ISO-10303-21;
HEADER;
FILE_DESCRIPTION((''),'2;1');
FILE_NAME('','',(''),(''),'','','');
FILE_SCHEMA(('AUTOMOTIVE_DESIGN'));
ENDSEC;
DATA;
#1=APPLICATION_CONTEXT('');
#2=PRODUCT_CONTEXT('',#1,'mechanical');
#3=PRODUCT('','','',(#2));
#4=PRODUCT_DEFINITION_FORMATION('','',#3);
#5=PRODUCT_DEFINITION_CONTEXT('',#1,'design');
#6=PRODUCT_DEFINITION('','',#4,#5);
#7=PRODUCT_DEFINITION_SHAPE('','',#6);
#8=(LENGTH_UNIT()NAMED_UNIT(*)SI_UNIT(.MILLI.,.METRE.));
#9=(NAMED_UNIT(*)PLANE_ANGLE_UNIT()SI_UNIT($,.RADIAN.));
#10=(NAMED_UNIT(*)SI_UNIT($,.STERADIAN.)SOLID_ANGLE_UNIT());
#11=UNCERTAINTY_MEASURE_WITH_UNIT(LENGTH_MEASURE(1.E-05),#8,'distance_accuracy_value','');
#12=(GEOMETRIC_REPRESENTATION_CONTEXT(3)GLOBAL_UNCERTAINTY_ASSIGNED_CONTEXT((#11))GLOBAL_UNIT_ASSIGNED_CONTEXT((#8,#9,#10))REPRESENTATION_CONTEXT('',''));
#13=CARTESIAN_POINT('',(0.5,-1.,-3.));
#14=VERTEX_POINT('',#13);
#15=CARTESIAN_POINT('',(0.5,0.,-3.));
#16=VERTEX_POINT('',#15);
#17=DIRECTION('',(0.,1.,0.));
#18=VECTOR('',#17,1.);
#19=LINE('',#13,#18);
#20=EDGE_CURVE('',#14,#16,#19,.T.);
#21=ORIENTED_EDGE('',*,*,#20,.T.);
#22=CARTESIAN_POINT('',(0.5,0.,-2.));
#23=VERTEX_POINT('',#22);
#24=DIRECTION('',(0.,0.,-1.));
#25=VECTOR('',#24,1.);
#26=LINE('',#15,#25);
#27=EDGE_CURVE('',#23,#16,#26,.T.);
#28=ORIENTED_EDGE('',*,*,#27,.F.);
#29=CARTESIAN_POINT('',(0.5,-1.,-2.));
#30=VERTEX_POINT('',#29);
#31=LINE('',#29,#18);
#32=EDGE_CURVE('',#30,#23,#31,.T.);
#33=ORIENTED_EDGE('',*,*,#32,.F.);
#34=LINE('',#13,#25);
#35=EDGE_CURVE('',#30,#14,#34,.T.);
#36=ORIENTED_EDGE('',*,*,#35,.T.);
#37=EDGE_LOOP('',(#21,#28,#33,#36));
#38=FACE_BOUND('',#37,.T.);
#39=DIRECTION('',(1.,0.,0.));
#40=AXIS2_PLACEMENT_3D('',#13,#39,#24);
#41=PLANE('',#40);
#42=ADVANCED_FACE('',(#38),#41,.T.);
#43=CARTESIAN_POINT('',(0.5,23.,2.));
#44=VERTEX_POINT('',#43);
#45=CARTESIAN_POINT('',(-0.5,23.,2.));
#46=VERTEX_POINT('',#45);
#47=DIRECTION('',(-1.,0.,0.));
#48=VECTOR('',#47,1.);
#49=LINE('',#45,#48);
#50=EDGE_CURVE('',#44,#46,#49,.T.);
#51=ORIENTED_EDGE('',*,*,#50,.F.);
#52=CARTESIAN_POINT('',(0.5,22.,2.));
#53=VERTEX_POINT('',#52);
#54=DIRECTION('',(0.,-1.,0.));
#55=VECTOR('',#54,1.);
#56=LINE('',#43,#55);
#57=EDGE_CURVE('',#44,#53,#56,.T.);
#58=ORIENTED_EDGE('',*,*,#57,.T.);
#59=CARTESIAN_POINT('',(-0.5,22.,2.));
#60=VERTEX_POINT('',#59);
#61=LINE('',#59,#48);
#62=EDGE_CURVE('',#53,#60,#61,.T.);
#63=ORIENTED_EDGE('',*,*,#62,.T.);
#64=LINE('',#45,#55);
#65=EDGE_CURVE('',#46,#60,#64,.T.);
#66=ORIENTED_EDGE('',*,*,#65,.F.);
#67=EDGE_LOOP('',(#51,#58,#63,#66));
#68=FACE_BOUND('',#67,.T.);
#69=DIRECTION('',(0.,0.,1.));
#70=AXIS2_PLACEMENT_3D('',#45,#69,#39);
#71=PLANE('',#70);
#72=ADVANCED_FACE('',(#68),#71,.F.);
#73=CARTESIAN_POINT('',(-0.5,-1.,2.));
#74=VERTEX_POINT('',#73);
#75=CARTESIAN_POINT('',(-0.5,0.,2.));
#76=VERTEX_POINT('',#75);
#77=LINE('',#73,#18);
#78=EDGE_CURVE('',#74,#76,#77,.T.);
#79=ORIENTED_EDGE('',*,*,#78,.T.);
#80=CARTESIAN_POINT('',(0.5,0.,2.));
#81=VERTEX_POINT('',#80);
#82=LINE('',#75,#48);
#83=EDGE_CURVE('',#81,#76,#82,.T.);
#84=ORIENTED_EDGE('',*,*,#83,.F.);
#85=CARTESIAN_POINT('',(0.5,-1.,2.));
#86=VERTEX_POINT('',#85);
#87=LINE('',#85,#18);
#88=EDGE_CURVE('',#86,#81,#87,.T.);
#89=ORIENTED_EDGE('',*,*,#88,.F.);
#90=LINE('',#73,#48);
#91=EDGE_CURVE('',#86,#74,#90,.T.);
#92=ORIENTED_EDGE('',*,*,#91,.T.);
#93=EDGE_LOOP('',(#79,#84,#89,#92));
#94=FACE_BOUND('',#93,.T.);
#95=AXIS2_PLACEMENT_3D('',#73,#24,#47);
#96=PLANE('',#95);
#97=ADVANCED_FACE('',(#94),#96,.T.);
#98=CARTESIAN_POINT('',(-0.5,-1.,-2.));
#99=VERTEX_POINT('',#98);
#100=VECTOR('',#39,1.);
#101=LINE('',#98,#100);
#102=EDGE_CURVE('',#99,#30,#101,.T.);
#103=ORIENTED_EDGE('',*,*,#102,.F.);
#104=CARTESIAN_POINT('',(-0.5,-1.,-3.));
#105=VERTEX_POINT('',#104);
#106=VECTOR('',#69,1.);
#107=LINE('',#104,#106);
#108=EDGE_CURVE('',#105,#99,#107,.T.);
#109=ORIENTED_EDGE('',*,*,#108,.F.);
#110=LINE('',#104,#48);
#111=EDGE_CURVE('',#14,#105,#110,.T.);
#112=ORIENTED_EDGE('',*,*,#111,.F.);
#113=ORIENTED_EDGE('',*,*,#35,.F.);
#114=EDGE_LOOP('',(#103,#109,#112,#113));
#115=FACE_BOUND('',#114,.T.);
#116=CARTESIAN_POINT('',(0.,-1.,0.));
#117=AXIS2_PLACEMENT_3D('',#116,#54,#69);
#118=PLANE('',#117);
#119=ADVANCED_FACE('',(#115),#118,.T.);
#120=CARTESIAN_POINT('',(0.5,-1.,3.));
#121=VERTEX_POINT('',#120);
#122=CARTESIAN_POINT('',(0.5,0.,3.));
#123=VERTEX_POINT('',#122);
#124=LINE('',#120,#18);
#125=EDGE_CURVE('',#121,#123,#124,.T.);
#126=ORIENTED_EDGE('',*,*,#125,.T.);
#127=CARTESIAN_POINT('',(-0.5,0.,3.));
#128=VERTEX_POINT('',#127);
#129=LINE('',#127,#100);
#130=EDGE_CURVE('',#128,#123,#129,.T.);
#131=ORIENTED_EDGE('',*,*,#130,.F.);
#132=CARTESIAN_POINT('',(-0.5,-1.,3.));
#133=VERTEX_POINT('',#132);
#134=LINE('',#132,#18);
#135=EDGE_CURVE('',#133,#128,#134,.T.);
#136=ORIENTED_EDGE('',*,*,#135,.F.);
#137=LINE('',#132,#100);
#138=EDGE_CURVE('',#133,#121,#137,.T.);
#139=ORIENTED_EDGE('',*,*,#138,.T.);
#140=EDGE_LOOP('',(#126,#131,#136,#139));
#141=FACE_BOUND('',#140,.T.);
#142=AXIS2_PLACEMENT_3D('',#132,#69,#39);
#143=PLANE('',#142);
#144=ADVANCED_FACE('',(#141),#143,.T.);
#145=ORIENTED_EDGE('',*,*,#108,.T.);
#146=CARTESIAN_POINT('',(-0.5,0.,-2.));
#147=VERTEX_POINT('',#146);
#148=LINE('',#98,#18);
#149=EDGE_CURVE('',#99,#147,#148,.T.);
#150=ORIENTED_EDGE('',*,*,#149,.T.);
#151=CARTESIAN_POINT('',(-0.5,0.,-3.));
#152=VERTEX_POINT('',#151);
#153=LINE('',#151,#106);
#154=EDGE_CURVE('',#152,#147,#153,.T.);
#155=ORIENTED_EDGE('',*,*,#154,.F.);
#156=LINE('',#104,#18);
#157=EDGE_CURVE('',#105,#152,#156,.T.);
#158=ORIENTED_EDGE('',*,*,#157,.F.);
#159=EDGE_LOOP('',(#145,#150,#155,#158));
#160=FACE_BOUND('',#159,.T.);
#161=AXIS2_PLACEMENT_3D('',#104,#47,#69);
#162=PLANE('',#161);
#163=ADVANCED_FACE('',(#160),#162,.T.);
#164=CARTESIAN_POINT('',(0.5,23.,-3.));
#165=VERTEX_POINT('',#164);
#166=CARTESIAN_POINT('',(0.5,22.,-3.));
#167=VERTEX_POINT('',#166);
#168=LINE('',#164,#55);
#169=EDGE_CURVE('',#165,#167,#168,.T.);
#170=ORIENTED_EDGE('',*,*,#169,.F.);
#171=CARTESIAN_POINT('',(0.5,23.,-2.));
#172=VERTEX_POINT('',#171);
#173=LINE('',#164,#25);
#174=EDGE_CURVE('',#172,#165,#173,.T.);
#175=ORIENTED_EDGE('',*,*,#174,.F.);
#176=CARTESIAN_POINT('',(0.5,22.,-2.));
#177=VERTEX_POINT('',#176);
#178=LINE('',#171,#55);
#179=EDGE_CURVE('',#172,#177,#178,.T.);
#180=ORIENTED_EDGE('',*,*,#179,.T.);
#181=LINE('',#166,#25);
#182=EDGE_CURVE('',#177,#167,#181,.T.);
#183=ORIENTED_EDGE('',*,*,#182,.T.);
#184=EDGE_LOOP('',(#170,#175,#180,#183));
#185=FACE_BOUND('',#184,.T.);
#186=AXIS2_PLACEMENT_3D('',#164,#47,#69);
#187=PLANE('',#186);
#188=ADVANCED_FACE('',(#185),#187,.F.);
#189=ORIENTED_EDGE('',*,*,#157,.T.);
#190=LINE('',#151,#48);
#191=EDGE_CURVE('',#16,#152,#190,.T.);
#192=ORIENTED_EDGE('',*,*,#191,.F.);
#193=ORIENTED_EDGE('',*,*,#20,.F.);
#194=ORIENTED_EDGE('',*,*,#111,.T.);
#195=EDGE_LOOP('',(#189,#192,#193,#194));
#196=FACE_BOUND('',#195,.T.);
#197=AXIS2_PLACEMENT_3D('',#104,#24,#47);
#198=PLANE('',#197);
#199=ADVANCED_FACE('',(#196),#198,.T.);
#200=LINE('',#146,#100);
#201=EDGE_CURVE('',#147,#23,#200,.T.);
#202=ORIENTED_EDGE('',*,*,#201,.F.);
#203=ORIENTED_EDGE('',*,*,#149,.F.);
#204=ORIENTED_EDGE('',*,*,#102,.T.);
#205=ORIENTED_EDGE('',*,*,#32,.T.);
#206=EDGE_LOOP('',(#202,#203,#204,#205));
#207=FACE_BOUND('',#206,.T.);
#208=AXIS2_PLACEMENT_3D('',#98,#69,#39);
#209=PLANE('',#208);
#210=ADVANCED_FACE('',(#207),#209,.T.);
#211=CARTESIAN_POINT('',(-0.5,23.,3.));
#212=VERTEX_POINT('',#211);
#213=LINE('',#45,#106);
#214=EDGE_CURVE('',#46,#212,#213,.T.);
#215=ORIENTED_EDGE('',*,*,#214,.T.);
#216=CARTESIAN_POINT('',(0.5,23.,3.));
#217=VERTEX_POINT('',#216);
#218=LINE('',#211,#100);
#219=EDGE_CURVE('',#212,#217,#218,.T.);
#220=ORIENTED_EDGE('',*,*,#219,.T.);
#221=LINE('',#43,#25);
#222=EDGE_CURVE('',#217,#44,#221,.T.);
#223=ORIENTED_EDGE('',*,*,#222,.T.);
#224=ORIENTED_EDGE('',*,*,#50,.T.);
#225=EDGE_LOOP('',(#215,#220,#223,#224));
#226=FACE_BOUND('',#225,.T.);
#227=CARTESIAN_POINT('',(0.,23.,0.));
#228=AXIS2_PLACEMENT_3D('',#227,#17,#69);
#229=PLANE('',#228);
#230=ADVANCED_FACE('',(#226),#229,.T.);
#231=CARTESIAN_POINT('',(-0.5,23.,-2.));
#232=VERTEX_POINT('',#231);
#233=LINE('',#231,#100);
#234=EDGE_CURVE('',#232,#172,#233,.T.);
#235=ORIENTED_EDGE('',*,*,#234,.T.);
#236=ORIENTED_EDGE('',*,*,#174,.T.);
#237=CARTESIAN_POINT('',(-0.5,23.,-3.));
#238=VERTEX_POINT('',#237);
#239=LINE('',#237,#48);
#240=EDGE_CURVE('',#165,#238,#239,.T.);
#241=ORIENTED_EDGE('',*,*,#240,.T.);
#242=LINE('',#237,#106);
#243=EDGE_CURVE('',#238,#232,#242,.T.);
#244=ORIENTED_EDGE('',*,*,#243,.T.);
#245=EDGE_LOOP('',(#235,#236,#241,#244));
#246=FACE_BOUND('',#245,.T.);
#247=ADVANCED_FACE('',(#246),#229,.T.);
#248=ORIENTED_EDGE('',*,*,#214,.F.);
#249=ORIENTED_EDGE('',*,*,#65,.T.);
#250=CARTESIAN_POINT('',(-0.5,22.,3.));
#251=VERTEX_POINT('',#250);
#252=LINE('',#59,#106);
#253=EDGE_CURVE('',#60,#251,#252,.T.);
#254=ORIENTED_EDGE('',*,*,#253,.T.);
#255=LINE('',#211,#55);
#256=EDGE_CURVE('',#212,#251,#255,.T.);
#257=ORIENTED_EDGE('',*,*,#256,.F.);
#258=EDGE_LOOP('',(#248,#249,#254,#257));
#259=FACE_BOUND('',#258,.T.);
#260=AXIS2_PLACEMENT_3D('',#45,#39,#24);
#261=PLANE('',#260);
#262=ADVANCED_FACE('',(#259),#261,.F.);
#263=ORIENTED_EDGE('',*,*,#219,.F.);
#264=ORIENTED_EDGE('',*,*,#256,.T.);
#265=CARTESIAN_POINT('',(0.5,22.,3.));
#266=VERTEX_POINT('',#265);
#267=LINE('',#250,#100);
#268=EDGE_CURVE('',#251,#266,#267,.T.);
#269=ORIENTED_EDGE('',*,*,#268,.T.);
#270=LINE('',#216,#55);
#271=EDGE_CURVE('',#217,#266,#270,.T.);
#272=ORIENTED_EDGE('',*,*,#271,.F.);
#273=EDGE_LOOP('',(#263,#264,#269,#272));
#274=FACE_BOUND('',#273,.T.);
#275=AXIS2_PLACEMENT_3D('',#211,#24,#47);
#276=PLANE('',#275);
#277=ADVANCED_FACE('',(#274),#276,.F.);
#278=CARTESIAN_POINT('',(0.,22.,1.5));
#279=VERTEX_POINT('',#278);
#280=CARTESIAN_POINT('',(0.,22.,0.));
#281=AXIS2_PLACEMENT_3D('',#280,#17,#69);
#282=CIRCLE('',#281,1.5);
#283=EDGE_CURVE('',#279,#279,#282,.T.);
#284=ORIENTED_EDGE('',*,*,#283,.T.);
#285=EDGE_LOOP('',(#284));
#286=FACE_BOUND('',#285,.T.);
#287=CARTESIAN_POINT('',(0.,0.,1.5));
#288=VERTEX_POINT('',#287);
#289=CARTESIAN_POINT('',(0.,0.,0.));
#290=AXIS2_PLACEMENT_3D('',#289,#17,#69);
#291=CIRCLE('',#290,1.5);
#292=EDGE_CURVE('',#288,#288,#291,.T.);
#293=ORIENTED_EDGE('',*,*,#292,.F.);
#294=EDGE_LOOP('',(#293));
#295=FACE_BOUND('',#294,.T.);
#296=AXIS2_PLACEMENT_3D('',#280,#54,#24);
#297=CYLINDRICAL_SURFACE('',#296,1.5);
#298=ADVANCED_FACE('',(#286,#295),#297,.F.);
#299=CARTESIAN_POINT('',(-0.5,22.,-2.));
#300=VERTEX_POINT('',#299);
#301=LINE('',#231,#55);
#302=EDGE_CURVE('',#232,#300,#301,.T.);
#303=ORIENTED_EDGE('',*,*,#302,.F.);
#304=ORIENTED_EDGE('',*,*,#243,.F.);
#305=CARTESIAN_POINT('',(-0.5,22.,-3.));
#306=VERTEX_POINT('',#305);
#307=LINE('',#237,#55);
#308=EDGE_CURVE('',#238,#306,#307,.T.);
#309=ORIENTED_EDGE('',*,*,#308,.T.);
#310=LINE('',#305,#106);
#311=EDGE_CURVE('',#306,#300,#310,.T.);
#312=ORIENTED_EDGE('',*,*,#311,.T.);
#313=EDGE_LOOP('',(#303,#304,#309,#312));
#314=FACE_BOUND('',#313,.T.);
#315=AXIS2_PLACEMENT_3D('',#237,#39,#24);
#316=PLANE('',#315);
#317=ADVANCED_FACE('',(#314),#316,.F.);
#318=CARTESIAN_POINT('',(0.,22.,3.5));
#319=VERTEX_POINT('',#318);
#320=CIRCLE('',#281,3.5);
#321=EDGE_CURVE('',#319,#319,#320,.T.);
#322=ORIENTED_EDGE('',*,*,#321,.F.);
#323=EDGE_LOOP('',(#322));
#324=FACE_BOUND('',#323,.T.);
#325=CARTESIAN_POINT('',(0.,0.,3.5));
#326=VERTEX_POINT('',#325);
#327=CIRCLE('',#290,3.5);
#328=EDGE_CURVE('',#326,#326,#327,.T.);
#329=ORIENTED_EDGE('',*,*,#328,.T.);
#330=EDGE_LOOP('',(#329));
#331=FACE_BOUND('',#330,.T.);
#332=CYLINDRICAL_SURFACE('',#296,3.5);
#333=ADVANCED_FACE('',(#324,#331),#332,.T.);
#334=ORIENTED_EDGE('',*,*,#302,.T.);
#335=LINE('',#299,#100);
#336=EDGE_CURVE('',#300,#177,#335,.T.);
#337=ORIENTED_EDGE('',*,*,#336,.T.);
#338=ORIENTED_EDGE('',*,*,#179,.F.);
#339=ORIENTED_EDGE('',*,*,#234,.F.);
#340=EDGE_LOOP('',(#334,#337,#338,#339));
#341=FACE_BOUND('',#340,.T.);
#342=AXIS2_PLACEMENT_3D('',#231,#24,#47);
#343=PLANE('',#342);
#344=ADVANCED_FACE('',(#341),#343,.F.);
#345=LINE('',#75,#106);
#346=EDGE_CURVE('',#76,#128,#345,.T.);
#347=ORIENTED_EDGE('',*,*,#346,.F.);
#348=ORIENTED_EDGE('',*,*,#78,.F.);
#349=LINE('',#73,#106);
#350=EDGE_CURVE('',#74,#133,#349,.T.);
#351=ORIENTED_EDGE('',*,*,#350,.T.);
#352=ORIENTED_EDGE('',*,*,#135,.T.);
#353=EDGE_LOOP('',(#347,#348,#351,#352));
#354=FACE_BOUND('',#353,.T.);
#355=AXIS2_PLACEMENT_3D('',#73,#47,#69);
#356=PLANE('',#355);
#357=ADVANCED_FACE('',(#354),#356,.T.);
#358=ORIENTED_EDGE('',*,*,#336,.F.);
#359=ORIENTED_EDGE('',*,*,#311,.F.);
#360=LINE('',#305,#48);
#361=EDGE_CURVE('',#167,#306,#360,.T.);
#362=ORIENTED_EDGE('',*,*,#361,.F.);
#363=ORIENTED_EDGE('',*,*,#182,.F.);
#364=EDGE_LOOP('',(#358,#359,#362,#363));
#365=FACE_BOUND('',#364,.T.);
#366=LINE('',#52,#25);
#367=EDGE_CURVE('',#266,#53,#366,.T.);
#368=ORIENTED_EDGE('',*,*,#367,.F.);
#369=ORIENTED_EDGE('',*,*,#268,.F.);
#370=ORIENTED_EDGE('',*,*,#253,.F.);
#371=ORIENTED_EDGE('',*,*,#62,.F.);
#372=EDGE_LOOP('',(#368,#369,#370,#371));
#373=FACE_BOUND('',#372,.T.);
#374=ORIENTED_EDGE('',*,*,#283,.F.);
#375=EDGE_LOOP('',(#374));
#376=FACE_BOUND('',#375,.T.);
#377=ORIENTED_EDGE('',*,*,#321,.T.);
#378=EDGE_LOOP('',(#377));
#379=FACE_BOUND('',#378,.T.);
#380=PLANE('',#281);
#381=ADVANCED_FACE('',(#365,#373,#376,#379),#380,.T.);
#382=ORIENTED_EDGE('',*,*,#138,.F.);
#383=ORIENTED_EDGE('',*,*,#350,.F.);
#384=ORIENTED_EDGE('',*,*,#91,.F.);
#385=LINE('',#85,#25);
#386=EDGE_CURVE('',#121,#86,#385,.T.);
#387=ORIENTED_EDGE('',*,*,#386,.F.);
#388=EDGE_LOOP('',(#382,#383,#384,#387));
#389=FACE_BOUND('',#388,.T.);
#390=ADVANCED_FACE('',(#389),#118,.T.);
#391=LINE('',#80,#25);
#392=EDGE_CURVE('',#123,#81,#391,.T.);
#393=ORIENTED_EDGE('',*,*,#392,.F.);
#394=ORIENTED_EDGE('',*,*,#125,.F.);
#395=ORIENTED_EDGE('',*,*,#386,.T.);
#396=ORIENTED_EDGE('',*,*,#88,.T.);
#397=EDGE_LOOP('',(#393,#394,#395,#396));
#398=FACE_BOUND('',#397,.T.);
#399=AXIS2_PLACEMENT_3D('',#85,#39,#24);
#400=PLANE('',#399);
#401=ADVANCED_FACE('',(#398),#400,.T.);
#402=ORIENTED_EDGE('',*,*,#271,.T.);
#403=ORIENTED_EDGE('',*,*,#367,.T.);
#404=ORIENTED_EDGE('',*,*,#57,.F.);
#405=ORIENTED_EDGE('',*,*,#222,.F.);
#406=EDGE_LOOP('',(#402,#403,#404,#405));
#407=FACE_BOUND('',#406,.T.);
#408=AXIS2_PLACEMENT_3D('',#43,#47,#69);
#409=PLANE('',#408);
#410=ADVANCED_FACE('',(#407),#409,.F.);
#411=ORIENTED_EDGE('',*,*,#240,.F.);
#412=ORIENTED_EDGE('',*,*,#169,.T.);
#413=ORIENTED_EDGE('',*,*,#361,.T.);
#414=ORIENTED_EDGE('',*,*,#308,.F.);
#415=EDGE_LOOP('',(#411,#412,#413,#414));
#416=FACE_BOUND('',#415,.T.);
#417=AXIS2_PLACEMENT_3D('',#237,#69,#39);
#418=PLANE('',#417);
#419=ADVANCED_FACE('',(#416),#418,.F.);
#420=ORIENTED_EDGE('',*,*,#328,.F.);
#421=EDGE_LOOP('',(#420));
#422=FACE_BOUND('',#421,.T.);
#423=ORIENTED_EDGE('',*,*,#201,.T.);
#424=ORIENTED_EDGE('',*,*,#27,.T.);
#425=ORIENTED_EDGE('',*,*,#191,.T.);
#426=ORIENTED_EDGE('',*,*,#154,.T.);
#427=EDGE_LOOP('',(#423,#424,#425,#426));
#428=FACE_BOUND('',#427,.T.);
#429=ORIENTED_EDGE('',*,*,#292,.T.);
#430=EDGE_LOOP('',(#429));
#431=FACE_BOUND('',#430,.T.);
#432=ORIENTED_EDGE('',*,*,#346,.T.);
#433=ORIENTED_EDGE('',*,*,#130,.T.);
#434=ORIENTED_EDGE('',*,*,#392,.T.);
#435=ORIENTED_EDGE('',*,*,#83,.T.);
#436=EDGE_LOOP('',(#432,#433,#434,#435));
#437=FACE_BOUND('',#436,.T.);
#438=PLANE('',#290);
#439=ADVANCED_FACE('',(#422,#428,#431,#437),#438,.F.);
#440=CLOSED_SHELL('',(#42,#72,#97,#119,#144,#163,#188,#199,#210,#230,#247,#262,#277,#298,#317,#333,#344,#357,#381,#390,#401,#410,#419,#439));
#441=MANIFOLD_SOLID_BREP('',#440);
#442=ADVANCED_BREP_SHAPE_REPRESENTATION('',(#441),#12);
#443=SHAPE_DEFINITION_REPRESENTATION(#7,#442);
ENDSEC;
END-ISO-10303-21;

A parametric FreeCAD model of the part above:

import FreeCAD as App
import Part
import Sketcher

V = App.Vector

doc = App.newDocument("Part")
body = doc.addObject("PartDesign::Body", "Body")

# Sketch on XZ plane
sketch1 = body.newObject("Sketcher::SketchObject", "Sketch")
sketch1.AttachmentSupport = (doc.getObject("XZ_Plane"), [""])
sketch1.MapMode = "FlatFace"
sketch1.addGeometry([
    Part.Circle(V(0, 0, 0), V(0, 0, 1), 3.5),
    Part.Circle(V(0, 0, 0), V(0, 0, 1), 1.5),
], False)
sketch1.addConstraint([
    Sketcher.Constraint("Coincident", 0, 3, -1, 1),
    Sketcher.Constraint("Coincident", 1, 3, -1, 1),
    Sketcher.Constraint("Diameter", 0, 7.0),
    Sketcher.Constraint("Diameter", 1, 3.0),
])
pad1 = body.newObject("PartDesign::Pad", "Pad")
pad1.Profile = sketch1
pad1.Length = 22
pad1.Reversed = True

# Sketch on XZ plane
sketch2 = body.newObject("Sketcher::SketchObject", "Sketch001")
sketch2.AttachmentSupport = (doc.getObject("XZ_Plane"), [""])
sketch2.MapMode = "FlatFace"
sketch2.AttachmentOffset = App.Placement(V(0, 0, -22), App.Rotation())
sketch2.addGeometry([
    Part.LineSegment(V(-0.5, -3, 0), V(-0.5, -2, 0)),  # 0
    Part.LineSegment(V(-0.5, -2, 0), V(0.5, -2, 0)),  # 1
    Part.LineSegment(V(0.5, -2, 0), V(0.5, -3, 0)),  # 2
    Part.LineSegment(V(0.5, -3, 0), V(-0.5, -3, 0)),  # 3
    Part.LineSegment(V(-0.5, 2, 0), V(-0.5, 3, 0)),  # 4
    Part.LineSegment(V(-0.5, 3, 0), V(0.5, 3, 0)),  # 5
    Part.LineSegment(V(0.5, 3, 0), V(0.5, 2, 0)),  # 6
    Part.LineSegment(V(0.5, 2, 0), V(-0.5, 2, 0)),  # 7
], False)
sketch2.addConstraint([
    Sketcher.Constraint("Coincident", 0, 2, 1, 1),
    Sketcher.Constraint("Coincident", 1, 2, 2, 1),
    Sketcher.Constraint("Coincident", 2, 2, 3, 1),
    Sketcher.Constraint("Coincident", 3, 2, 0, 1),
    Sketcher.Constraint("Coincident", 4, 2, 5, 1),
    Sketcher.Constraint("Coincident", 5, 2, 6, 1),
    Sketcher.Constraint("Coincident", 6, 2, 7, 1),
    Sketcher.Constraint("Coincident", 7, 2, 4, 1),
    Sketcher.Constraint("Vertical", 0),
    Sketcher.Constraint("Horizontal", 1),
    Sketcher.Constraint("Vertical", 2),
    Sketcher.Constraint("Horizontal", 3),
    Sketcher.Constraint("Vertical", 4),
    Sketcher.Constraint("Horizontal", 5),
    Sketcher.Constraint("Vertical", 6),
    Sketcher.Constraint("Horizontal", 7),
    Sketcher.Constraint("Symmetric", 2, 2, 4, 2, -1, 1),
    Sketcher.Constraint("Symmetric", 0, 2, 6, 2, -1, 1),
    Sketcher.Constraint("Vertical", 3, 2, 4, 2),
    Sketcher.Constraint("Equal", 7, 0),
    Sketcher.Constraint("DistanceX", 1, 1, 1, 2, 1.0),
    Sketcher.Constraint("DistanceY", 0, 2, -1, 1, 2.0),
])
pad2 = body.newObject("PartDesign::Pad", "Pad001")
pad2.Profile = sketch2
pad2.Length = 1
pad2.Reversed = True
doc.recompute()

datumplane = body.newObject("PartDesign::Plane", "DatumPlane")
datumplane.AttachmentSupport = (doc.getObject("XZ_Plane"), [""])
datumplane.MapMode = "FlatFace"
datumplane.AttachmentOffset = App.Placement(V(0, 0, -11), App.Rotation())
mirrored = body.newObject("PartDesign::Mirrored", "Mirrored")
mirrored.Originals = [pad2]
mirrored.MirrorPlane = (datumplane, [""])
body.Tip = mirrored

doc.recompute()
